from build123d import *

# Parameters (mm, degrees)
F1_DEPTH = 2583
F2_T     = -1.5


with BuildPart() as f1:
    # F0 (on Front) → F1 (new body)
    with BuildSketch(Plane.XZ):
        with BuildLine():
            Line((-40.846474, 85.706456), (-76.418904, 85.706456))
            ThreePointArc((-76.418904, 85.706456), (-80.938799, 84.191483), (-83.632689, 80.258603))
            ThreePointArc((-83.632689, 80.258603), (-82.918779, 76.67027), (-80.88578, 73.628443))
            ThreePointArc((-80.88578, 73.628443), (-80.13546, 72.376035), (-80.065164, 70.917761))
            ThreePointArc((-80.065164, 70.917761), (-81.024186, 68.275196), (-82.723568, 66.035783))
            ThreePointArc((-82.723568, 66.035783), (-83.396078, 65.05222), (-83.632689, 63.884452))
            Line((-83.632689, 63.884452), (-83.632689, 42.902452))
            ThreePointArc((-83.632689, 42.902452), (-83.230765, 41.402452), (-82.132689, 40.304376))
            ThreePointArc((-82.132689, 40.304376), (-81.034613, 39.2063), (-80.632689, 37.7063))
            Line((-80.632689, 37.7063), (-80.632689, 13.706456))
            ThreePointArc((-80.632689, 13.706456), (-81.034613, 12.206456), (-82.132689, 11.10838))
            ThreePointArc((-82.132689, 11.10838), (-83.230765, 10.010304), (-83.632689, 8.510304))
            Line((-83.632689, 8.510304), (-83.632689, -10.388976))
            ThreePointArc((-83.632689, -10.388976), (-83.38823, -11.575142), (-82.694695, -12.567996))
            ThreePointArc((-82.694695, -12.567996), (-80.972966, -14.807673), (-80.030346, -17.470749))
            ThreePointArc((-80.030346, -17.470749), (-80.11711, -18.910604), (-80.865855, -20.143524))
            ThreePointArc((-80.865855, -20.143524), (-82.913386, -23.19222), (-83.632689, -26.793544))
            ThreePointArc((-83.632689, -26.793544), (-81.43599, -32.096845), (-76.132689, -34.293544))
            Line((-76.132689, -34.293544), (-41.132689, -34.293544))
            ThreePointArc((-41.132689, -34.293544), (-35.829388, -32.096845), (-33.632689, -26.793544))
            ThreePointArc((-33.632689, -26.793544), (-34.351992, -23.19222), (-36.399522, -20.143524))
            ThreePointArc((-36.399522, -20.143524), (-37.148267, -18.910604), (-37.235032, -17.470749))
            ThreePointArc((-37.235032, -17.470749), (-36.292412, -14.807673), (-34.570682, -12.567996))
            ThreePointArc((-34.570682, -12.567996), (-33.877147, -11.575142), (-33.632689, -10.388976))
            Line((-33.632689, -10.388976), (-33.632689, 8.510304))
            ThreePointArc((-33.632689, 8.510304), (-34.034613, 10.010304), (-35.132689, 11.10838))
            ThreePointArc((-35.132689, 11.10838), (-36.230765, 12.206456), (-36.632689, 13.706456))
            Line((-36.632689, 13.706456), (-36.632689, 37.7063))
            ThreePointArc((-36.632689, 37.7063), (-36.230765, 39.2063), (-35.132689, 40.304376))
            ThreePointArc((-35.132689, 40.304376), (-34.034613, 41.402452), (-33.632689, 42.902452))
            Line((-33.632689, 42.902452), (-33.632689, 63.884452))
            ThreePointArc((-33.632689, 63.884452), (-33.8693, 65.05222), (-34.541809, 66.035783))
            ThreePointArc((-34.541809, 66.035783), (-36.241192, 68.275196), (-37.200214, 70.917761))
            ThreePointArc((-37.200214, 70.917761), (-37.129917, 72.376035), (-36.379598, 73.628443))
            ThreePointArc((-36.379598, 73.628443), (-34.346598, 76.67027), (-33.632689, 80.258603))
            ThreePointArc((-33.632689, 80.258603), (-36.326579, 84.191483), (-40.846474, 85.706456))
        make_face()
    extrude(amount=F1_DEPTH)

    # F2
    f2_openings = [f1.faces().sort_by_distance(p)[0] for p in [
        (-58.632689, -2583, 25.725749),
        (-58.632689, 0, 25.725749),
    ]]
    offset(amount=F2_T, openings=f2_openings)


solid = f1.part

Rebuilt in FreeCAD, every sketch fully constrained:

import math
import FreeCAD as App
import Part
import Sketcher
Q = App.Units.Quantity


def faces_at(feature, points):
    """Names of the faces that lie closest to the given points."""
    faces = feature.Shape.Faces
    near = lambda p: min(range(len(faces)), key=lambda i: faces[i].distToShape(Part.Vertex(*p))[0])
    return sorted({f"Face{near(p) + 1}" for p in points})

doc = App.newDocument("Part")
body = doc.addObject("PartDesign::Body", "Body")

# Sketch on XZ plane
sketch1 = body.newObject("Sketcher::SketchObject", "Sketch")
sketch1.AttachmentSupport = (doc.getObject("XZ_Plane"), [""])
sketch1.MapMode = "FlatFace"
sketch1.addGeometry([
    Part.LineSegment(App.Vector(-40.8, 85.7, 0), App.Vector(-76.4, 85.7, 0)),  # 0
    Part.ArcOfCircle(Part.Circle(App.Vector(-76.4, 78.2, 0), App.Vector(0, 0, 1), 7.5), math.radians(90), math.radians(164)),  # 1
    Part.ArcOfCircle(Part.Circle(App.Vector(-74.3, 80.3, 0), App.Vector(0, 0, 1), 9.4), math.radians(-180), math.radians(-135)),  # 2
    Part.ArcOfCircle(Part.Circle(App.Vector(-83, 71.5, 0), App.Vector(0, 0, 1), 3), math.radians(-11), math.radians(45)),  # 3
    Part.ArcOfCircle(Part.Circle(App.Vector(-89.3, 72.8, 0), App.Vector(0, 0, 1), 9.4), math.radians(-46), math.radians(-11)),  # 4
    Part.ArcOfCircle(Part.Circle(App.Vector(-80.6, 63.9, 0), App.Vector(0, 0, 1), 3), math.radians(134), math.radians(180)),  # 5
    Part.LineSegment(App.Vector(-83.6, 63.9, 0), App.Vector(-83.6, 42.9, 0)),  # 6
    Part.ArcOfCircle(Part.Circle(App.Vector(-80.6, 42.9, 0), App.Vector(0, 0, 1), 3), math.radians(-180), math.radians(-120)),  # 7
    Part.ArcOfCircle(Part.Circle(App.Vector(-83.6, 37.7, 0), App.Vector(0, 0, 1), 3), math.radians(0), math.radians(60)),  # 8
    Part.LineSegment(App.Vector(-80.6, 37.7, 0), App.Vector(-80.6, 13.7, 0)),  # 9
    Part.ArcOfCircle(Part.Circle(App.Vector(-83.6, 13.7, 0), App.Vector(0, 0, 1), 3), math.radians(-60), math.radians(0)),  # 10
    Part.ArcOfCircle(Part.Circle(App.Vector(-80.6, 8.5, 0), App.Vector(0, 0, 1), 3), math.radians(120), math.radians(180)),  # 11
    Part.LineSegment(App.Vector(-83.6, 8.5, 0), App.Vector(-83.6, -10.4, 0)),  # 12
    Part.ArcOfCircle(Part.Circle(App.Vector(-80.6, -10.4, 0), App.Vector(0, 0, 1), 3), math.radians(-180), math.radians(-133)),  # 13
    Part.ArcOfCircle(Part.Circle(App.Vector(-88.9, -19.1, 0), App.Vector(0, 0, 1), 9), math.radians(10), math.radians(47)),  # 14
    Part.ArcOfCircle(Part.Circle(App.Vector(-83, -18, 0), App.Vector(0, 0, 1), 3), math.radians(-45), math.radians(10)),  # 15
    Part.ArcOfCircle(Part.Circle(App.Vector(-74.3, -26.8, 0), App.Vector(0, 0, 1), 9.4), math.radians(135), math.radians(180)),  # 16
    Part.ArcOfCircle(Part.Circle(App.Vector(-76.1, -26.8, 0), App.Vector(0, 0, 1), 7.5), math.radians(180), math.radians(270)),  # 17
    Part.LineSegment(App.Vector(-76.1, -34.3, 0), App.Vector(-41.1, -34.3, 0)),  # 18
    Part.ArcOfCircle(Part.Circle(App.Vector(-41.1, -26.8, 0), App.Vector(0, 0, 1), 7.5), math.radians(-90), math.radians(0)),  # 19
    Part.ArcOfCircle(Part.Circle(App.Vector(-43, -26.8, 0), App.Vector(0, 0, 1), 9.4), math.radians(0), math.radians(45)),  # 20
    Part.ArcOfCircle(Part.Circle(App.Vector(-34.3, -18, 0), App.Vector(0, 0, 1), 3), math.radians(170), math.radians(225)),  # 21
    Part.ArcOfCircle(Part.Circle(App.Vector(-28.4, -19.1, 0), App.Vector(0, 0, 1), 9), math.radians(133), math.radians(170)),  # 22
    Part.ArcOfCircle(Part.Circle(App.Vector(-36.6, -10.4, 0), App.Vector(0, 0, 1), 3), math.radians(-47), math.radians(0)),  # 23
    Part.LineSegment(App.Vector(-33.6, -10.4, 0), App.Vector(-33.6, 8.5, 0)),  # 24
    Part.ArcOfCircle(Part.Circle(App.Vector(-36.6, 8.5, 0), App.Vector(0, 0, 1), 3), math.radians(0), math.radians(60)),  # 25
    Part.ArcOfCircle(Part.Circle(App.Vector(-33.6, 13.7, 0), App.Vector(0, 0, 1), 3), math.radians(-180), math.radians(-120)),  # 26
    Part.LineSegment(App.Vector(-36.6, 13.7, 0), App.Vector(-36.6, 37.7, 0)),  # 27
    Part.ArcOfCircle(Part.Circle(App.Vector(-33.6, 37.7, 0), App.Vector(0, 0, 1), 3), math.radians(120), math.radians(180)),  # 28
    Part.ArcOfCircle(Part.Circle(App.Vector(-36.6, 42.9, 0), App.Vector(0, 0, 1), 3), math.radians(-60), math.radians(0)),  # 29
    Part.LineSegment(App.Vector(-33.6, 42.9, 0), App.Vector(-33.6, 63.9, 0)),  # 30
    Part.ArcOfCircle(Part.Circle(App.Vector(-36.6, 63.9, 0), App.Vector(0, 0, 1), 3), math.radians(0), math.radians(46)),  # 31
    Part.ArcOfCircle(Part.Circle(App.Vector(-28, 72.8, 0), App.Vector(0, 0, 1), 9.4), math.radians(-169), math.radians(-134)),  # 32
    Part.ArcOfCircle(Part.Circle(App.Vector(-34.3, 71.5, 0), App.Vector(0, 0, 1), 3), math.radians(135), math.radians(191)),  # 33
    Part.ArcOfCircle(Part.Circle(App.Vector(-43, 80.3, 0), App.Vector(0, 0, 1), 9.4), math.radians(-45), math.radians(0)),  # 34
    Part.ArcOfCircle(Part.Circle(App.Vector(-40.8, 78.2, 0), App.Vector(0, 0, 1), 7.5), math.radians(16), math.radians(90)),  # 35
], False)
sketch1.addConstraint([
    Sketcher.Constraint("Tangent", 0, 2, 1, 1),
    Sketcher.Constraint("Coincident", 1, 2, 2, 1),
    Sketcher.Constraint("Tangent", 2, 2, 3, 2),
    Sketcher.Constraint("Tangent", 3, 1, 4, 2),
    Sketcher.Constraint("Tangent", 4, 1, 5, 1),
    Sketcher.Constraint("Tangent", 5, 2, 6, 1),
    Sketcher.Constraint("Tangent", 6, 2, 7, 1),
    Sketcher.Constraint("Tangent", 7, 2, 8, 2),
    Sketcher.Constraint("Tangent", 8, 1, 9, 1),
    Sketcher.Constraint("Tangent", 9, 2, 10, 2),
    Sketcher.Constraint("Tangent", 10, 1, 11, 1),
    Sketcher.Constraint("Tangent", 11, 2, 12, 1),
    Sketcher.Constraint("Tangent", 12, 2, 13, 1),
    Sketcher.Constraint("Tangent", 13, 2, 14, 2),
    Sketcher.Constraint("Tangent", 14, 1, 15, 2),
    Sketcher.Constraint("Tangent", 15, 1, 16, 1),
    Sketcher.Constraint("Tangent", 16, 2, 17, 1),
    Sketcher.Constraint("Tangent", 17, 2, 18, 1),
    Sketcher.Constraint("Tangent", 18, 2, 19, 1),
    Sketcher.Constraint("Tangent", 19, 2, 20, 1),
    Sketcher.Constraint("Tangent", 20, 2, 21, 2),
    Sketcher.Constraint("Tangent", 21, 1, 22, 2),
    Sketcher.Constraint("Tangent", 22, 1, 23, 1),
    Sketcher.Constraint("Tangent", 23, 2, 24, 1),
    Sketcher.Constraint("Tangent", 24, 2, 25, 1),
    Sketcher.Constraint("Tangent", 25, 2, 26, 2),
    Sketcher.Constraint("Tangent", 26, 1, 27, 1),
    Sketcher.Constraint("Tangent", 27, 2, 28, 2),
    Sketcher.Constraint("Tangent", 28, 1, 29, 1),
    Sketcher.Constraint("Tangent", 29, 2, 30, 1),
    Sketcher.Constraint("Tangent", 30, 2, 31, 1),
    Sketcher.Constraint("Tangent", 31, 2, 32, 2),
    Sketcher.Constraint("Tangent", 32, 1, 33, 2),
    Sketcher.Constraint("Tangent", 33, 1, 34, 1),
    Sketcher.Constraint("Coincident", 34, 2, 35, 1),
    Sketcher.Constraint("Tangent", 35, 2, 0, 1),
    Sketcher.Constraint("Horizontal", 0),
    Sketcher.Constraint("Vertical", 6),
    Sketcher.Constraint("Vertical", 9),
    Sketcher.Constraint("Vertical", 12),
    Sketcher.Constraint("Horizontal", 18),
    Sketcher.Constraint("Vertical", 24),
    Sketcher.Constraint("Vertical", 27),
    Sketcher.Constraint("Vertical", 30),
    Sketcher.Constraint("Equal", 3, 5),
    Sketcher.Constraint("Equal", 7, 8),
    Sketcher.Constraint("Equal", 8, 10),
    Sketcher.Constraint("Equal", 10, 11),
    Sketcher.Constraint("Equal", 3, 15),
    Sketcher.Constraint("Equal", 1, 17),
    Sketcher.Constraint("Equal", 17, 19),
    Sketcher.Constraint("Equal", 2, 20),
    Sketcher.Constraint("Equal", 11, 21),
    Sketcher.Constraint("Equal", 21, 23),
    Sketcher.Constraint("Equal", 21, 25),
    Sketcher.Constraint("Equal", 25, 26),
    Sketcher.Constraint("Equal", 26, 28),
    Sketcher.Constraint("Equal", 28, 29),
    Sketcher.Constraint("Equal", 13, 31),
    Sketcher.Constraint("Equal", 13, 33),
    Sketcher.Constraint("Equal", 19, 35),
    Sketcher.Constraint("Horizontal", 16, 3, 17, 3),
    Sketcher.Constraint("Horizontal", 19, 3, 20, 3),
    Sketcher.Constraint("Horizontal", 11, 3, 25, 3),
    Sketcher.Constraint("Horizontal", 10, 3, 26, 3),
    Sketcher.Constraint("Horizontal", 8, 3, 28, 3),
    Sketcher.Constraint("Horizontal", 7, 3, 29, 3),
    Sketcher.Constraint("Horizontal", 5, 3, 31, 3),
    Sketcher.Constraint("Horizontal", 23, 3, 12, 2),
    Sketcher.Constraint("Horizontal", 15, 1, 20, 2),
    Sketcher.Constraint("Horizontal", 14, 1, 21, 1),
    Sketcher.Constraint("Horizontal", 13, 2, 22, 1),
    Sketcher.Constraint("Horizontal", 4, 1, 31, 2),
    Sketcher.Constraint("Horizontal", 3, 1, 32, 1),
    Sketcher.Constraint("Horizontal", 2, 2, 33, 1),
    Sketcher.Constraint("Horizontal", 1, 2, 34, 2),
    Sketcher.Constraint("Vertical", 7, 3, 11, 3),
    Sketcher.Constraint("Vertical", 10, 3, 1, 2),
    Sketcher.Constraint("Vertical", 1, 2, 5, 2),
    Sketcher.Constraint("Vertical", 12, 2, 16, 2),
    Sketcher.Constraint("Vertical", 28, 3, 19, 2),
    Sketcher.Constraint("Vertical", 30, 2, 34, 2),
    Sketcher.Constraint("Radius", 5, Q("2.999998 mm")),
    Sketcher.Constraint("Radius", 7, Q("3.000001 mm")),
    Sketcher.Constraint("Radius", 14, Q("8.999999 mm")),
    Sketcher.Constraint("Radius", 1, Q("7.5 mm")),
    Sketcher.Constraint("DistanceX", 18, 1, 18, 2, Q("35 mm")),
    Sketcher.Constraint("Radius", 16, Q("9.375 mm")),
    Sketcher.Constraint("DistanceY", 6, 2, 6, 1, Q("20.982 mm")),
    Sketcher.Constraint("Radius", 22, Q("8.999992 mm")),
    Sketcher.Constraint("Radius", 32, Q("9.374589 mm")),
    Sketcher.Constraint("Radius", 34, Q("9.374992 mm")),
    Sketcher.Constraint("DistanceX", 0, 2, 0, 1, Q("35.57243 mm")),
    Sketcher.Constraint("DistanceY", 12, 2, 12, 1, Q("18.89928 mm")),
    Sketcher.Constraint("DistanceY", -1, 1, 4, 3, Q("72.758401 mm")),
    Sketcher.Constraint("DistanceY", -1, 1, 8, 3, Q("37.7063 mm")),
    Sketcher.Constraint("DistanceX", 32, 3, -1, 1, Q("28.008099 mm")),
    Sketcher.Constraint("DistanceY", -1, 1, 34, 3, Q("80.2586 mm")),
    Sketcher.Constraint("DistanceY", 9, 2, 9, 1, Q("23.999844 mm")),
    Sketcher.Constraint("DistanceY", 15, 3, -1, 1, Q("18.01552 mm")),
    Sketcher.Constraint("DistanceX", 21, 3, -1, 1, Q("34.284909 mm")),
    Sketcher.Constraint("DistanceY", -1, 1, 1, 3, Q("78.206456 mm")),
])
pad1 = body.newObject("PartDesign::Pad", "Pad")
pad1.Profile = sketch1
pad1.Length = 2583
doc.recompute()

thickness = body.newObject("PartDesign::Thickness", "Thickness")
thickness.Base = (pad1, faces_at(pad1, [(-58.633, -2583, 25.706), (-58.633, 0, 25.706)]))
thickness.Value = 1.5
thickness.Reversed = True
thickness.Join = "Arc"

doc.recompute()
